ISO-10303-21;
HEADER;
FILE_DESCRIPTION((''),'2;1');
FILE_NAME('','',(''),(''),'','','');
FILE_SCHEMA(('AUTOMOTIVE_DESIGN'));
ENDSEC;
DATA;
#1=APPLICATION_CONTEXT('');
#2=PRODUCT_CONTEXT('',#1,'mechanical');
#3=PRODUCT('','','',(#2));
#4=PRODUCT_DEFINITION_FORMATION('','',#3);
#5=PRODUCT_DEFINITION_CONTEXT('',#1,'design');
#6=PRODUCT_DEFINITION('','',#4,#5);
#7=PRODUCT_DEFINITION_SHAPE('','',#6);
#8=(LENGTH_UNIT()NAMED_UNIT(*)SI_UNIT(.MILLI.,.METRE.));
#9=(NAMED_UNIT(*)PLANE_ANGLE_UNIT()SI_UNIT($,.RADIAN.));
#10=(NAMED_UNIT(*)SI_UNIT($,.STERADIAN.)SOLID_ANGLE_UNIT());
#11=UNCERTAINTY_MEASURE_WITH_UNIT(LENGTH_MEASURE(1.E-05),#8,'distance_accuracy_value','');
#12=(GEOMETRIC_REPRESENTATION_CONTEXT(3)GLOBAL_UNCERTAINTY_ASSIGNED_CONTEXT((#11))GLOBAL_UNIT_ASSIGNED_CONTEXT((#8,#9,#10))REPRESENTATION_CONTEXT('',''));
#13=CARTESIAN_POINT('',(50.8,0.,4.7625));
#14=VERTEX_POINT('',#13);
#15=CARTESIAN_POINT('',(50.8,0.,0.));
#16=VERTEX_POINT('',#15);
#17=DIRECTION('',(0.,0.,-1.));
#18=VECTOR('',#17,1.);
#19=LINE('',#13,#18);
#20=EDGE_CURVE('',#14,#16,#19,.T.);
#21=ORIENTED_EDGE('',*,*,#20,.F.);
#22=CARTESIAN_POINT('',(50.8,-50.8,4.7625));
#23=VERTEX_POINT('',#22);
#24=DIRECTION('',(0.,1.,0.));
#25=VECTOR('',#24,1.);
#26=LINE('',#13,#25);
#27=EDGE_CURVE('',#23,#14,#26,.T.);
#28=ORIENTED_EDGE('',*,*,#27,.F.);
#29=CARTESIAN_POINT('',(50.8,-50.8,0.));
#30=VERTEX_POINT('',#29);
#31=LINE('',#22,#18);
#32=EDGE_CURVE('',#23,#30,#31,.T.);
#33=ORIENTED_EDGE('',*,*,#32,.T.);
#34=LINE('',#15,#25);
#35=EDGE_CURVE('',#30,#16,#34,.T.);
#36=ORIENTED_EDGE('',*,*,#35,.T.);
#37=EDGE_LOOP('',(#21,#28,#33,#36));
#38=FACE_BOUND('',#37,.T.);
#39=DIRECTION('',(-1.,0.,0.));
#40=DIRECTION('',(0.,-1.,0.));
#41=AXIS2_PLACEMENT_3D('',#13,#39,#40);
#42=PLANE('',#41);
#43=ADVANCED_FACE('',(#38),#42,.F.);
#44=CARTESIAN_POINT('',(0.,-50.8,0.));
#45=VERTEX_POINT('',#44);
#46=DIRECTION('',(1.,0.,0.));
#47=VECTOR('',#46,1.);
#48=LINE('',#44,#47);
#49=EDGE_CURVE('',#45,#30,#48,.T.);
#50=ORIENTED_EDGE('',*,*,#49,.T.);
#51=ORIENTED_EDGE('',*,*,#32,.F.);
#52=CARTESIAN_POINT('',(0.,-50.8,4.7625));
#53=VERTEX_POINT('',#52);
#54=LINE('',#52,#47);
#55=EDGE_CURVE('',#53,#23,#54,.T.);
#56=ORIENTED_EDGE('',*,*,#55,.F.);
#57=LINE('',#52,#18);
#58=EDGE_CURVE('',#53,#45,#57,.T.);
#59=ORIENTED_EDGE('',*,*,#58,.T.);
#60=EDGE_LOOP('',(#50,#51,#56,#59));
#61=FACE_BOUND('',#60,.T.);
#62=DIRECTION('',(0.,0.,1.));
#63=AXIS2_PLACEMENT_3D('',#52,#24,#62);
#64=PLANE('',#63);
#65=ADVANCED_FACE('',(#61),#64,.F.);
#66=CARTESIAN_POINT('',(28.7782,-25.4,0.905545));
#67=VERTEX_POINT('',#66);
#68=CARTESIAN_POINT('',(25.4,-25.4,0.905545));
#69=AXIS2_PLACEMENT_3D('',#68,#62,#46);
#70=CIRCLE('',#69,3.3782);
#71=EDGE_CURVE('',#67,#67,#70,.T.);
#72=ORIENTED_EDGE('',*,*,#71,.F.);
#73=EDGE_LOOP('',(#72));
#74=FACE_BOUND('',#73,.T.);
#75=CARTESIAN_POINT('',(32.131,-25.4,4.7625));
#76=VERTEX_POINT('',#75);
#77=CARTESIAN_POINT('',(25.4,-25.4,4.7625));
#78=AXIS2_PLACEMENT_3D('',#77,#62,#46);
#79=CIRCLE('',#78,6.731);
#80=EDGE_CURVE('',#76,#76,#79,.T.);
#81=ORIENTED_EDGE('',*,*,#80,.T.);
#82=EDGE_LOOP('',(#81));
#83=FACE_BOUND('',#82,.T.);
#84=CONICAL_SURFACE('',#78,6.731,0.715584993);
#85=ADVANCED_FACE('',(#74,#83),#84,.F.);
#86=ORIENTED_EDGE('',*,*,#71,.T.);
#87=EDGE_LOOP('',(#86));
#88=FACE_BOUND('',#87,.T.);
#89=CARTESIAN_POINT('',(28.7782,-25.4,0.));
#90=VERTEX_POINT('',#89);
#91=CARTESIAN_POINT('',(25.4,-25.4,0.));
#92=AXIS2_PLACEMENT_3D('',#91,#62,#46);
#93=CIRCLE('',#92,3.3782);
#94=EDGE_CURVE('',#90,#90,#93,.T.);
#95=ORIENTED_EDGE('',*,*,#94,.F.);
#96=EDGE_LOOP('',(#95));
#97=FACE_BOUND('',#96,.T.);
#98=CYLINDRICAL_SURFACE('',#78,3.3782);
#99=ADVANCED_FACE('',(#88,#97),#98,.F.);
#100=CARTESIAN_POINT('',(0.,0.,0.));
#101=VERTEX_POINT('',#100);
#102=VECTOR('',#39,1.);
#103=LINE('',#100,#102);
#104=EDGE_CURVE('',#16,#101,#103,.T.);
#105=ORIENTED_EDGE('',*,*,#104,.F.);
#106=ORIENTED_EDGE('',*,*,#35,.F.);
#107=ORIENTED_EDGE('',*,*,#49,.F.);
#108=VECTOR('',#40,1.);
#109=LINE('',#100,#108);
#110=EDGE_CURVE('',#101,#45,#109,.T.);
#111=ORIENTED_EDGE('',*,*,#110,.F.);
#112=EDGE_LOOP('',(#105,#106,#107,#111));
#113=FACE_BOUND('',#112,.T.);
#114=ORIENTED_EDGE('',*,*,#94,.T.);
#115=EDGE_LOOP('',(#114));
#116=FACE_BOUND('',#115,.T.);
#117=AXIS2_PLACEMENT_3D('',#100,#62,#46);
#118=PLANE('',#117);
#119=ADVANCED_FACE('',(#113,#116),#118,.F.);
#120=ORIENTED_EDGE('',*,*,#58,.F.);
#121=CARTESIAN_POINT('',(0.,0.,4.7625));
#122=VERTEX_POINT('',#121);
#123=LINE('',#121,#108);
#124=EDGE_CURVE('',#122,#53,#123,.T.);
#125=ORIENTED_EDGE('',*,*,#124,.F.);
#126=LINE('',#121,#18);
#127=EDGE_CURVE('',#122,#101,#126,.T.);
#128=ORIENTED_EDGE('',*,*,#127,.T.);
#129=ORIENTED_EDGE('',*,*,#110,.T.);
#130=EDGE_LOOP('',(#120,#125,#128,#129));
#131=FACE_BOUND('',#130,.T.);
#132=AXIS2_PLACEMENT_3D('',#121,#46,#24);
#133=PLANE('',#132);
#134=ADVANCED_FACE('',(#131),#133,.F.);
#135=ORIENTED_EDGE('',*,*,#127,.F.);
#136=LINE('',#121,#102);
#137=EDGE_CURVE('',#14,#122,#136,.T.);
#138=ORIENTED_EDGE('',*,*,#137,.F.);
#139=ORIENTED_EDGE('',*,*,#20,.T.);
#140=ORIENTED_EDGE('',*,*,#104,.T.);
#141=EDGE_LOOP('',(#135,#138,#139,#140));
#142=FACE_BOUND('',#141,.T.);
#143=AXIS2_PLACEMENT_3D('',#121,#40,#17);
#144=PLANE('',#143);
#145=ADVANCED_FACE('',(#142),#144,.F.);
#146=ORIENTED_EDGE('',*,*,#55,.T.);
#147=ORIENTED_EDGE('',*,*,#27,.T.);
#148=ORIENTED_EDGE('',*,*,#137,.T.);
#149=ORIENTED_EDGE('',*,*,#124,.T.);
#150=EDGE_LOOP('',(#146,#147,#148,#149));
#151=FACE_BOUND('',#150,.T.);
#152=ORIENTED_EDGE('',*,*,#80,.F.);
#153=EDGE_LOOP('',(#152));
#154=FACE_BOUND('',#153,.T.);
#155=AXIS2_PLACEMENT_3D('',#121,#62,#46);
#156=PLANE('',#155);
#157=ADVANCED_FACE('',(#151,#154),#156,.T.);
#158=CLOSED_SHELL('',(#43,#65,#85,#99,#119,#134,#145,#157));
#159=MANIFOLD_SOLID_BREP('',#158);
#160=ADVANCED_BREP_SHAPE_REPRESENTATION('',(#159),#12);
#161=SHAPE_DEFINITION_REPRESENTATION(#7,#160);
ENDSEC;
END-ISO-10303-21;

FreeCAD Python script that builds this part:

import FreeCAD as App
import Part
import Sketcher
from FreeCAD import Vector
Q = App.Units.Quantity

doc = App.newDocument("Part")
body = doc.addObject("PartDesign::Body", "Body")

# Sketch on XY plane
sketch1 = body.newObject("Sketcher::SketchObject", "Sketch")
sketch1.AttachmentSupport = (doc.getObject("XY_Plane"), [""])
sketch1.MapMode = "FlatFace"
sketch1.addGeometry([
    Part.LineSegment(Vector(0, 0, 0), Vector(0, -51, 0)),
    Part.LineSegment(Vector(0, -51, 0), Vector(51, -51, 0)),
    Part.LineSegment(Vector(51, -51, 0), Vector(51, 0, 0)),
    Part.LineSegment(Vector(51, 0, 0), Vector(0, 0, 0)),
], False)
sketch1.addConstraint([
    Sketcher.Constraint("Coincident", 0, 2, 1, 1),
    Sketcher.Constraint("Coincident", 1, 2, 2, 1),
    Sketcher.Constraint("Coincident", 2, 2, 3, 1),
    Sketcher.Constraint("Coincident", 3, 2, 0, 1),
    Sketcher.Constraint("Vertical", 0),
    Sketcher.Constraint("Horizontal", 1),
    Sketcher.Constraint("Vertical", 2),
    Sketcher.Constraint("Horizontal", 3),
    Sketcher.Constraint("Coincident", 3, 2, -1, 1),
    Sketcher.Constraint("Equal", 3, 0),
    Sketcher.Constraint("DistanceX", 1, 1, 1, 2, Q("2 in")),
])
pad1 = body.newObject("PartDesign::Pad", "Pad")
pad1.Profile = sketch1
pad1.Length = Q("0.1875 in")

# Sketch on YZ plane
sketch2 = body.newObject("Sketcher::SketchObject", "Sketch001")
sketch2.AttachmentSupport = (doc.getObject("YZ_Plane"), [""])
sketch2.MapMode = "FlatFace"
sketch2.AttachmentOffset = App.Placement(Vector(0, 0, 1 * 25.4), App.Rotation())
sketch2.addGeometry([
    Part.LineSegment(Vector(-25.4, 0, 0), Vector(-25.4, 4.8, 0)),  # 0
    Part.LineSegment(Vector(-25.4, 4.8, 0), Vector(-32.1, 4.8, 0)),  # 1
    Part.LineSegment(Vector(-32.1, 4.8, 0), Vector(-28.8, 0.9, 0)),  # 2
    Part.LineSegment(Vector(-28.8, 0.9, 0), Vector(-28.8, 0, 0)),  # 3
    Part.LineSegment(Vector(-28.8, 0, 0), Vector(-25.4, 0, 0)),  # 4
], False)
sketch2.addGeometry(Part.LineSegment(Vector(-25.4, 4.8, 0), Vector(-25.4, 0, 0)), True)  # axis
sketch2.addConstraint([
    Sketcher.Constraint("Coincident", 0, 2, 1, 1),
    Sketcher.Constraint("Coincident", 1, 2, 2, 1),
    Sketcher.Constraint("Coincident", 2, 2, 3, 1),
    Sketcher.Constraint("Coincident", 3, 2, 4, 1),
    Sketcher.Constraint("Coincident", 4, 2, 0, 1),
    Sketcher.Constraint("Vertical", 0),
    Sketcher.Constraint("Horizontal", 1),
    Sketcher.Constraint("Vertical", 3),
    Sketcher.Constraint("Horizontal", 4),
    Sketcher.Constraint("Vertical", 5),
    Sketcher.Constraint("Coincident", 5, 1, 0, 2),
    Sketcher.Constraint("PointOnObject", 3, 2, -1),
    Sketcher.Constraint("PointOnObject", 5, 2, -1),
    Sketcher.Constraint("DistanceX", 0, 2, -1, 1, Q("1 in")),
    Sketcher.Constraint("Angle", 2, Q("-49 deg")),
    Sketcher.Constraint("DistanceX", 1, 2, 1, 1, Q("0.265 in")),
    Sketcher.Constraint("DistanceX", 4, 1, 4, 2, Q("0.133 in")),
    Sketcher.Constraint("DistanceY", 0, 1, 0, 2, Q("0.1875 in")),
])
groove = body.newObject("PartDesign::Groove", "Groove")
groove.Profile = sketch2
groove.ReferenceAxis = (sketch2, ["Axis0"])
groove.Angle = 360

doc.recompute()
